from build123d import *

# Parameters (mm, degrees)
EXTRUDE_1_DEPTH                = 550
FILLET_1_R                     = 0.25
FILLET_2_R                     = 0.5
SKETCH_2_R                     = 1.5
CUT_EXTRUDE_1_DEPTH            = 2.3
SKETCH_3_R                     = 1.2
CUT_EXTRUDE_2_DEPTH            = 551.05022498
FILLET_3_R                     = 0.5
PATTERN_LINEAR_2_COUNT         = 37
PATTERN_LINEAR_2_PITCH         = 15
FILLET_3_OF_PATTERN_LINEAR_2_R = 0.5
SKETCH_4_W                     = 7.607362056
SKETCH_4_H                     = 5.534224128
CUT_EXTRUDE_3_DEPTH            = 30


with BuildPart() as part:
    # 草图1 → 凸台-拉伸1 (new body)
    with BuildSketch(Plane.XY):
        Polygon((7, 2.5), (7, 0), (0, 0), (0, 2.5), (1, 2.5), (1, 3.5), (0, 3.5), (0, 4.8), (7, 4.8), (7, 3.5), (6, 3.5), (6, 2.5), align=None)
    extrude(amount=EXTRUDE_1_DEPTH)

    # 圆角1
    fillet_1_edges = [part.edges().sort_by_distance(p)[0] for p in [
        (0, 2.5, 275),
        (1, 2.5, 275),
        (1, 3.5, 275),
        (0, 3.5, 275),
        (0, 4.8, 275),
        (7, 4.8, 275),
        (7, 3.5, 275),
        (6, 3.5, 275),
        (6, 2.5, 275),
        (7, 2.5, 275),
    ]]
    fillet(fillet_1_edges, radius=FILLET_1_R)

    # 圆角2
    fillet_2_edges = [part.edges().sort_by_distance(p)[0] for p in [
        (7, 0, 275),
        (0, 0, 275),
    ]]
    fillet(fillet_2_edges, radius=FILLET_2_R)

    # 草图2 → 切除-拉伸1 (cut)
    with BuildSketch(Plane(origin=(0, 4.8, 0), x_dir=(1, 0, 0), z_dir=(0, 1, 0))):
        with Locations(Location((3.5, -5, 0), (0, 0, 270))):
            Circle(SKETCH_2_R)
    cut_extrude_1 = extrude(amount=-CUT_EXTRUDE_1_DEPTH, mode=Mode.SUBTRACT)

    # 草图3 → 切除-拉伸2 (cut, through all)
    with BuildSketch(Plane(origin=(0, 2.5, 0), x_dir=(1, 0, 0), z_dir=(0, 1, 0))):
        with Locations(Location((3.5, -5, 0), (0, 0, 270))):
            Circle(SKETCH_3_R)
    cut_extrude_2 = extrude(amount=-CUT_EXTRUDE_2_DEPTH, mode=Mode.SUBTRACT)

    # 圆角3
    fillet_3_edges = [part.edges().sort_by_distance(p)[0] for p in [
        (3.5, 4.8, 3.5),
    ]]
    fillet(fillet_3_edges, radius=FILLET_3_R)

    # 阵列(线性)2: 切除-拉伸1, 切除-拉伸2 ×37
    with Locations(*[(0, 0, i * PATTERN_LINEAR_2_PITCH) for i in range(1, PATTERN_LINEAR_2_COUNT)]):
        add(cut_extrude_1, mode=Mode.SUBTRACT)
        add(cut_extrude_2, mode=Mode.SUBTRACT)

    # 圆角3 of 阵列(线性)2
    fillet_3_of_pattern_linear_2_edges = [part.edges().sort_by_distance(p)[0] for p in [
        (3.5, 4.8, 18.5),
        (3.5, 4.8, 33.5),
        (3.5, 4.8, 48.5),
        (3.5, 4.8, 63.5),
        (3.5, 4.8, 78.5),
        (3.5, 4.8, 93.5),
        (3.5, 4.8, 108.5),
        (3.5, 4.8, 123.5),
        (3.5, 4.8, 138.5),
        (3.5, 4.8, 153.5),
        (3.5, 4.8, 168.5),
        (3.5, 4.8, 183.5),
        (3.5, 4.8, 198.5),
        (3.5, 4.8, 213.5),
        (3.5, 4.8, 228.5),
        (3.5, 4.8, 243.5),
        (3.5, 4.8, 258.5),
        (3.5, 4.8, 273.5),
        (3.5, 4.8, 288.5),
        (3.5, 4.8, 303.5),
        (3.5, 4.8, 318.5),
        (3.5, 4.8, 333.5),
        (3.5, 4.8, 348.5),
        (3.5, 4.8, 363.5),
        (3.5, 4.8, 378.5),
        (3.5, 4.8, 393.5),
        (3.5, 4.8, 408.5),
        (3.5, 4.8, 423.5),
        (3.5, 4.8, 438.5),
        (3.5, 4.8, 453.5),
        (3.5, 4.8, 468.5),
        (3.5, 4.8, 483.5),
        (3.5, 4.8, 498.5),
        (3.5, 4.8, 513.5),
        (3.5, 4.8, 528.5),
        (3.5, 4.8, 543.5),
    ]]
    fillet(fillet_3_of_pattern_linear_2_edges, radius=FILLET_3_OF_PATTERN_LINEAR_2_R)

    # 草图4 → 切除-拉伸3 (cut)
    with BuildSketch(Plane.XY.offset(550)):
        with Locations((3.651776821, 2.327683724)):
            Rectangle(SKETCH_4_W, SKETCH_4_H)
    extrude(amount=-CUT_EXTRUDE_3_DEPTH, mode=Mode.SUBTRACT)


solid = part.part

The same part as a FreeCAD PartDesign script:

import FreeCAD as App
import Part
import Sketcher
from FreeCAD import Vector
Q = App.Units.Quantity


def edges_at(feature, points):
    """Names of the edges that pass closest to the given points."""
    edges = feature.Shape.Edges
    near = lambda p: min(range(len(edges)), key=lambda i: edges[i].distToShape(Part.Vertex(*p))[0])
    return sorted({f"Edge{near(p) + 1}" for p in points})

doc = App.newDocument("Part")
body = doc.addObject("PartDesign::Body", "Body")

sketch1 = body.newObject("Sketcher::SketchObject", "Sketch")
sketch1.AttachmentSupport = (doc.getObject("XY_Plane"), [""])
sketch1.MapMode = "FlatFace"
sketch1.addGeometry(Part.LineSegment(Vector(7, 0, 0), Vector(7, 2.5, 0)), False)
sketch1.addGeometry(Part.LineSegment(Vector(7, 2.5, 0), Vector(6, 2.5, 0)), False)
sketch1.addGeometry(Part.LineSegment(Vector(6, 2.5, 0), Vector(6, 3.5, 0)), False)
sketch1.addGeometry(Part.LineSegment(Vector(6, 3.5, 0), Vector(7, 3.5, 0)), False)
sketch1.addGeometry(Part.LineSegment(Vector(7, 3.5, 0), Vector(7, 4.8, 0)), False)
sketch1.addGeometry(Part.LineSegment(Vector(7, 4.8, 0), Vector(0, 4.8, 0)), False)
sketch1.addGeometry(Part.LineSegment(Vector(0, 4.8, 0), Vector(0, 3.5, 0)), False)
sketch1.addGeometry(Part.LineSegment(Vector(0, 3.5, 0), Vector(1, 3.5, 0)), False)
sketch1.addGeometry(Part.LineSegment(Vector(1, 3.5, 0), Vector(1, 2.5, 0)), False)
sketch1.addGeometry(Part.LineSegment(Vector(1, 2.5, 0), Vector(0, 2.5, 0)), False)
sketch1.addGeometry(Part.LineSegment(Vector(0, 2.5, 0), Vector(0, 0, 0)), False)
sketch1.addGeometry(Part.LineSegment(Vector(0, 0, 0), Vector(7, 0, 0)), False)
sketch1.addConstraint(Sketcher.Constraint("Coincident", 0, 2, 1, 1))
sketch1.addConstraint(Sketcher.Constraint("Coincident", 1, 2, 2, 1))
sketch1.addConstraint(Sketcher.Constraint("Coincident", 2, 2, 3, 1))
sketch1.addConstraint(Sketcher.Constraint("Coincident", 3, 2, 4, 1))
sketch1.addConstraint(Sketcher.Constraint("Coincident", 4, 2, 5, 1))
sketch1.addConstraint(Sketcher.Constraint("Coincident", 5, 2, 6, 1))
sketch1.addConstraint(Sketcher.Constraint("Coincident", 6, 2, 7, 1))
sketch1.addConstraint(Sketcher.Constraint("Coincident", 7, 2, 8, 1))
sketch1.addConstraint(Sketcher.Constraint("Coincident", 8, 2, 9, 1))
sketch1.addConstraint(Sketcher.Constraint("Coincident", 9, 2, 10, 1))
sketch1.addConstraint(Sketcher.Constraint("Coincident", 10, 2, 11, 1))
sketch1.addConstraint(Sketcher.Constraint("Coincident", 11, 2, 0, 1))
sketch1.addConstraint(Sketcher.Constraint("Vertical", 0))
sketch1.addConstraint(Sketcher.Constraint("Horizontal", 1))
sketch1.addConstraint(Sketcher.Constraint("Vertical", 2))
sketch1.addConstraint(Sketcher.Constraint("Horizontal", 3))
sketch1.addConstraint(Sketcher.Constraint("Vertical", 4))
sketch1.addConstraint(Sketcher.Constraint("Horizontal", 5))
sketch1.addConstraint(Sketcher.Constraint("Vertical", 6))
sketch1.addConstraint(Sketcher.Constraint("Horizontal", 7))
sketch1.addConstraint(Sketcher.Constraint("Vertical", 8))
sketch1.addConstraint(Sketcher.Constraint("Horizontal", 9))
sketch1.addConstraint(Sketcher.Constraint("Vertical", 10))
sketch1.addConstraint(Sketcher.Constraint("Horizontal", 11))
sketch1.addConstraint(Sketcher.Constraint("Coincident", 10, 2, -1, 1))
sketch1.addConstraint(Sketcher.Constraint("PointOnObject", 5, 2, -2))
sketch1.addConstraint(Sketcher.Constraint("Horizontal", 3, 2, 6, 2))
sketch1.addConstraint(Sketcher.Constraint("Horizontal", 1, 2, 8, 2))
sketch1.addConstraint(Sketcher.Constraint("Vertical", 0, 2, 3, 2))
sketch1.addConstraint(Sketcher.Constraint("Equal", 3, 7))
sketch1.addConstraint(Sketcher.Constraint("Equal", 9, 2))
sketch1.addConstraint(Sketcher.Constraint("DistanceX", 1, 2, 1, 1, Q("1 mm")))
sketch1.addConstraint(Sketcher.Constraint("DistanceX", 5, 2, 5, 1, Q("7 mm")))
sketch1.addConstraint(Sketcher.Constraint("DistanceY", 0, 1, 0, 2, Q("2.5 mm")))
sketch1.addConstraint(Sketcher.Constraint("DistanceY", 4, 1, 4, 2, Q("1.3 mm")))
pad1 = body.newObject("PartDesign::Pad", "Pad")
pad1.Profile = sketch1
pad1.Length = 550
doc.recompute()

fillet = body.newObject("PartDesign::Fillet", "Fillet")
fillet.Base = (pad1, edges_at(pad1, [
    (0, 2.5, 275),
    (1, 2.5, 275),
    (1, 3.5, 275),
    (0, 3.5, 275),
    (0, 4.8, 275),
    (7, 4.8, 275),
    (7, 3.5, 275),
    (6, 3.5, 275),
    (6, 2.5, 275),
    (7, 2.5, 275),
]))
fillet.Radius = 0.25
doc.recompute()

fillet2 = body.newObject("PartDesign::Fillet", "Fillet001")
fillet2.Base = (fillet, edges_at(fillet, [(7, 0, 275), (0, 0, 275)]))
fillet2.Radius = 0.5

sketch2 = body.newObject("Sketcher::SketchObject", "Sketch001")
sketch2.AttachmentSupport = (doc.getObject("XZ_Plane"), [""])
sketch2.MapMode = "FlatFace"
sketch2.AttachmentOffset = App.Placement(Vector(0, 0, -4.8), App.Rotation())
sketch2.addGeometry(Part.Circle(Vector(3.5, 5, 0), Vector(0, 0, 1), 1.5), False)
sketch2.addConstraint(Sketcher.Constraint("Diameter", 0, Q("3 mm")))
sketch2.addConstraint(Sketcher.Constraint("DistanceY", -1, 1, 0, 3, Q("5 mm")))
sketch2.addConstraint(Sketcher.Constraint("DistanceX", -1, 1, 0, 3, Q("3.5 mm")))
pocket1 = body.newObject("PartDesign::Pocket", "Pocket")
pocket1.Profile = sketch2
pocket1.Length = 2.3
pocket1.Reversed = True

sketch3 = body.newObject("Sketcher::SketchObject", "Sketch002")
sketch3.AttachmentSupport = (doc.getObject("XZ_Plane"), [""])
sketch3.MapMode = "FlatFace"
sketch3.AttachmentOffset = App.Placement(Vector(0, 0, -2.5), App.Rotation())
sketch3.addGeometry(Part.Circle(Vector(3.5, 5, 0), Vector(0, 0, 1), 1.2), False)
sketch3.addConstraint(Sketcher.Constraint("Diameter", 0, Q("2.4 mm")))
sketch3.addConstraint(Sketcher.Constraint("DistanceY", -1, 1, 0, 3, Q("5 mm")))
sketch3.addConstraint(Sketcher.Constraint("DistanceX", -1, 1, 0, 3, Q("3.5 mm")))
pocket2 = body.newObject("PartDesign::Pocket", "Pocket001")
pocket2.Profile = sketch3
pocket2.Type = "ThroughAll"
pocket2.Reversed = True
doc.recompute()

fillet3 = body.newObject("PartDesign::Fillet", "Fillet002")
fillet3.Base = (pocket2, edges_at(pocket2, [(3.5, 4.8, 3.5)]))
fillet3.Radius = 0.5
doc.recompute()

linearpattern = body.newObject("PartDesign::LinearPattern", "LinearPattern")
linearpattern.Originals = [pocket1, pocket2]
linearpattern.Direction = (doc.getObject("Z_Axis"), [""])
linearpattern.Mode = "offset"
linearpattern.Offset = 15
linearpattern.Occurrences = 37
body.Tip = linearpattern
doc.recompute()

fillet4 = body.newObject("PartDesign::Fillet", "Fillet003")
fillet4.Base = (linearpattern, edges_at(linearpattern, [
    (3.5, 4.8, 18.5),
    (3.5, 4.8, 33.5),
    (3.5, 4.8, 48.5),
    (3.5, 4.8, 63.5),
    (3.5, 4.8, 78.5),
    (3.5, 4.8, 93.5),
    (3.5, 4.8, 108.5),
    (3.5, 4.8, 123.5),
    (3.5, 4.8, 138.5),
    (3.5, 4.8, 153.5),
    (3.5, 4.8, 168.5),
    (3.5, 4.8, 183.5),
    (3.5, 4.8, 198.5),
    (3.5, 4.8, 213.5),
    (3.5, 4.8, 228.5),
    (3.5, 4.8, 243.5),
    (3.5, 4.8, 258.5),
    (3.5, 4.8, 273.5),
    (3.5, 4.8, 288.5),
    (3.5, 4.8, 303.5),
    (3.5, 4.8, 318.5),
    (3.5, 4.8, 333.5),
    (3.5, 4.8, 348.5),
    (3.5, 4.8, 363.5),
    (3.5, 4.8, 378.5),
    (3.5, 4.8, 393.5),
    (3.5, 4.8, 408.5),
    (3.5, 4.8, 423.5),
    (3.5, 4.8, 438.5),
    (3.5, 4.8, 453.5),
    (3.5, 4.8, 468.5),
    (3.5, 4.8, 483.5),
    (3.5, 4.8, 498.5),
    (3.5, 4.8, 513.5),
    (3.5, 4.8, 528.5),
    (3.5, 4.8, 543.5),
]))
fillet4.Radius = 0.5

sketch4 = body.newObject("Sketcher::SketchObject", "Sketch003")
sketch4.AttachmentSupport = (doc.getObject("XY_Plane"), [""])
sketch4.MapMode = "FlatFace"
sketch4.AttachmentOffset = App.Placement(Vector(0, 0, 550), App.Rotation())
sketch4.addGeometry(Part.LineSegment(Vector(0, 5, 0), Vector(0, 0, 0)), False)
sketch4.addGeometry(Part.LineSegment(Vector(0, 0, 0), Vector(7, 0, 0)), False)
sketch4.addGeometry(Part.LineSegment(Vector(7, 0, 0), Vector(7, 5, 0)), False)
sketch4.addGeometry(Part.LineSegment(Vector(7, 5, 0), Vector(0, 5, 0)), False)
sketch4.addConstraint(Sketcher.Constraint("Coincident", 0, 2, 1, 1))
sketch4.addConstraint(Sketcher.Constraint("Coincident", 1, 2, 2, 1))
sketch4.addConstraint(Sketcher.Constraint("Coincident", 2, 2, 3, 1))
sketch4.addConstraint(Sketcher.Constraint("Coincident", 3, 2, 0, 1))
sketch4.addConstraint(Sketcher.Constraint("Vertical", 0))
sketch4.addConstraint(Sketcher.Constraint("Horizontal", 1))
sketch4.addConstraint(Sketcher.Constraint("Vertical", 2))
sketch4.addConstraint(Sketcher.Constraint("Horizontal", 3))
sketch4.addConstraint(Sketcher.Constraint("DistanceX", 1, 1, 1, 2, Q("7.607362 mm")))
sketch4.addConstraint(Sketcher.Constraint("DistanceY", 0, 2, 0, 1, Q("5.534224 mm")))
sketch4.addConstraint(Sketcher.Constraint("DistanceY", 0, 2, -1, 1, Q("0.439428 mm")))
sketch4.addConstraint(Sketcher.Constraint("DistanceX", 0, 2, -1, 1, Q("0.151904 mm")))
pocket3 = body.newObject("PartDesign::Pocket", "Pocket002")
pocket3.Profile = sketch4
pocket3.Length = 30

doc.recompute()
